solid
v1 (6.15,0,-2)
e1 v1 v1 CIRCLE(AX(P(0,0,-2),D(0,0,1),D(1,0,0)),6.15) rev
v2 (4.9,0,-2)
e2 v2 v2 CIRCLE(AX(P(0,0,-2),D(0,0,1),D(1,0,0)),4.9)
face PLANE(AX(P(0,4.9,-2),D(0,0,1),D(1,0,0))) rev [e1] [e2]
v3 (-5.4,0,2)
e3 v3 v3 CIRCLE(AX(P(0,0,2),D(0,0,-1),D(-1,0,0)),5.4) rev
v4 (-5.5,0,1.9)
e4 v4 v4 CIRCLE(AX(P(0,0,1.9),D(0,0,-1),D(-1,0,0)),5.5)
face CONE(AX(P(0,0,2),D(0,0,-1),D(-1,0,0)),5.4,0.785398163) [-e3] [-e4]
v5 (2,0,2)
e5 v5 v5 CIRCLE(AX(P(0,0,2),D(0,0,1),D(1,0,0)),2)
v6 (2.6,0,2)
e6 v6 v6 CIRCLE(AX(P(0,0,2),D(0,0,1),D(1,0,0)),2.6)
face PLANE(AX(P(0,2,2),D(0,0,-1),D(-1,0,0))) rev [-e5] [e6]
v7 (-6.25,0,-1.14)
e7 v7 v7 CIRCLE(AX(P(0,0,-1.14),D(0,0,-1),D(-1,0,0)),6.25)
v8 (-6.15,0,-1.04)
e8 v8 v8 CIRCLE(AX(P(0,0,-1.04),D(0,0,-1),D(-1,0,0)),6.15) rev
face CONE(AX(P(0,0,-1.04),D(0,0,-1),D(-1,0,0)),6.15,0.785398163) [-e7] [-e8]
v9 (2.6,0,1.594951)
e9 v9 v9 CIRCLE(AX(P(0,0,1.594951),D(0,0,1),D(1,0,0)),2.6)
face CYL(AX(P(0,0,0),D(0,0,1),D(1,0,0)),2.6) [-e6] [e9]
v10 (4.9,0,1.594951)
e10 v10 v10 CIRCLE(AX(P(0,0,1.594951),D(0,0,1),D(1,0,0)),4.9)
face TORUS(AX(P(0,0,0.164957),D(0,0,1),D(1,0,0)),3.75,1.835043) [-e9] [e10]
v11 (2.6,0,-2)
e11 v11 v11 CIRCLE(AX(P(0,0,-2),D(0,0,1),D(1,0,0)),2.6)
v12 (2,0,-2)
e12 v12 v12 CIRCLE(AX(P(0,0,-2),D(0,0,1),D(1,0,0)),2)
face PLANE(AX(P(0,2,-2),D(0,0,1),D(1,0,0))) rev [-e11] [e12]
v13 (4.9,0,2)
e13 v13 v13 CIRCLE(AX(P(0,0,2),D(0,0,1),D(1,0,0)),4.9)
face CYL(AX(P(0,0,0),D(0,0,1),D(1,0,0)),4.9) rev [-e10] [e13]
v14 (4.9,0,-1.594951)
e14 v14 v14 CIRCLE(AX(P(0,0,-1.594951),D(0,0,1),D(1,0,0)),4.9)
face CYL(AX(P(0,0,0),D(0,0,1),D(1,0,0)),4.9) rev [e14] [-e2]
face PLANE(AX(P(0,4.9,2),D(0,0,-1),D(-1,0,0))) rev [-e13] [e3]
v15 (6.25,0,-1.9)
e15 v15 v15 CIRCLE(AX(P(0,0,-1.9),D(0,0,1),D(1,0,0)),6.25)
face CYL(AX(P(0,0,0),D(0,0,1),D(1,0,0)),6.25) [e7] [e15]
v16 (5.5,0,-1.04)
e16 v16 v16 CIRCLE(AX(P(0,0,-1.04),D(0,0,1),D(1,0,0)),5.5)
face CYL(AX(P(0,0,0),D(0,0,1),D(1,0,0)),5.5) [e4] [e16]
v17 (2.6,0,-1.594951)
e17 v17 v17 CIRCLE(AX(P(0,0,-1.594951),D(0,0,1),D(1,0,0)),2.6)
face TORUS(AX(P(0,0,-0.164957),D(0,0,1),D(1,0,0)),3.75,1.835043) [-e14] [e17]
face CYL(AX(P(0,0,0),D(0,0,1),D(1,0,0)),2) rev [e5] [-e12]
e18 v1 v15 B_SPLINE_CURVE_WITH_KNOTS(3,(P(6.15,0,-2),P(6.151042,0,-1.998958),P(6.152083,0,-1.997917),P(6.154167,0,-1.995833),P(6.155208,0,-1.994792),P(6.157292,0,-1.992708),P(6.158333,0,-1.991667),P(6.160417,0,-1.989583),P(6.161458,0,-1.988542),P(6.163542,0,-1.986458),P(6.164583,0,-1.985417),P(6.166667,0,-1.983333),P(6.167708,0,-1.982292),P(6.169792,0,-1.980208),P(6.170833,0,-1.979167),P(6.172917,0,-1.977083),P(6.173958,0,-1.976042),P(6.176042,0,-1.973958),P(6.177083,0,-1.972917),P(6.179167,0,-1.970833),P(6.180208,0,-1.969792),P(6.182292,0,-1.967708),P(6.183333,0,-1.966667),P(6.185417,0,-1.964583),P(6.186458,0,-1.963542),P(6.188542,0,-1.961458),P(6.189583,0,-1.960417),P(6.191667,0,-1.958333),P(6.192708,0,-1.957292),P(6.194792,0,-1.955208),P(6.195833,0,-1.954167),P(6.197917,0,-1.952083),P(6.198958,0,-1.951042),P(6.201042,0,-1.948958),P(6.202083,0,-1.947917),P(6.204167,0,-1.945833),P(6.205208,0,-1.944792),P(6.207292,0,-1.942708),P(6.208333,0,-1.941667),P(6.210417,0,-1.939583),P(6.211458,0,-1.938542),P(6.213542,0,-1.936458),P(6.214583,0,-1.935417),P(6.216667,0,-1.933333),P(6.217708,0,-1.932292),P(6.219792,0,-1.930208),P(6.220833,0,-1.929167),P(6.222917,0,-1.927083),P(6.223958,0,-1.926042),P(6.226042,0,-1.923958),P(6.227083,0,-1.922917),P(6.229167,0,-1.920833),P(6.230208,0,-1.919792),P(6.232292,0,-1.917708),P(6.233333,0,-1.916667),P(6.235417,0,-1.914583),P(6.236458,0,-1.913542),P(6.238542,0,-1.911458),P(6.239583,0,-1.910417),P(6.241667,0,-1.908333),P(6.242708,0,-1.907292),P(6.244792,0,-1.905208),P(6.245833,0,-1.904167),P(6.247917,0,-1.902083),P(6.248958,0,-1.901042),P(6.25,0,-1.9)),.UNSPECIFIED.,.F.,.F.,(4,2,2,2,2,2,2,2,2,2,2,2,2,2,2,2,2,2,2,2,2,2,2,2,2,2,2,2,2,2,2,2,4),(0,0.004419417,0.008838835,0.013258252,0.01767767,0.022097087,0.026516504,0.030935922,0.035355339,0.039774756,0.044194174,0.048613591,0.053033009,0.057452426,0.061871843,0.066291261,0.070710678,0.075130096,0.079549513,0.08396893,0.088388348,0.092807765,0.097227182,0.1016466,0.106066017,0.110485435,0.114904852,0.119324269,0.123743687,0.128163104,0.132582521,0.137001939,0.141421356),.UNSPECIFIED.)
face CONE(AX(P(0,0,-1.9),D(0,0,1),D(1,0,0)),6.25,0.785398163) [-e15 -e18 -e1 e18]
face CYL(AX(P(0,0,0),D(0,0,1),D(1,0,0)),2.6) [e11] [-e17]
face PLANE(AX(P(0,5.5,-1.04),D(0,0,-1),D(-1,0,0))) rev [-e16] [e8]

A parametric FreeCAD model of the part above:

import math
import FreeCAD as App
import Part
import Sketcher
Q = App.Units.Quantity


def edges_at(feature, points):
    """Names of the edges that pass closest to the given points."""
    edges = feature.Shape.Edges
    near = lambda p: min(range(len(edges)), key=lambda i: edges[i].distToShape(Part.Vertex(*p))[0])
    return sorted({f"Edge{near(p) + 1}" for p in points})

doc = App.newDocument("Part")
params = doc.addObject("Spreadsheet::Sheet", "Params")
for row, (alias, value) in enumerate([
    ("sketch1_height", "4 mm"),
    ("sketch1_width", "0.6 mm"),
    ("sketch1_width2", "1.35 mm"),
    ("sketch1_height2", "0.96 mm"),
    ("revolution_angle", "360 deg"),
    ("chamfer_size", "0.1 mm"),
], start=1):
    params.set(f"A{row}", alias)
    params.set(f"B{row}", "=" + value)
    params.setAlias(f"B{row}", alias)

body = doc.addObject("PartDesign::Body", "Body")

sketch1 = body.newObject("Sketcher::SketchObject", "Sketch")
sketch1.AttachmentSupport = (doc.getObject("YZ_Plane"), [""])
sketch1.MapMode = "FlatFace"
sketch1.addGeometry(Part.LineSegment(App.Vector(2, 2, 0), App.Vector(2, -2, 0)), False)
sketch1.addGeometry(Part.LineSegment(App.Vector(2, -2, 0), App.Vector(2.6, -2, 0)), False)
sketch1.addGeometry(Part.LineSegment(App.Vector(2.6, -2, 0), App.Vector(2.6, -1.594951, 0)), False)
sketch1.addGeometry(Part.ArcOfCircle(Part.Circle(App.Vector(3.75, -0.164957, 0), App.Vector(0, 0, 1), 1.835043), math.radians(-128.806206), math.radians(-51.193794)), False)
sketch1.addGeometry(Part.LineSegment(App.Vector(4.9, -1.594951, 0), App.Vector(4.9, -2, 0)), False)
sketch1.addGeometry(Part.LineSegment(App.Vector(4.9, -2, 0), App.Vector(6.25, -2, 0)), False)
sketch1.addGeometry(Part.LineSegment(App.Vector(6.25, -2, 0), App.Vector(6.25, -1.04, 0)), False)
sketch1.addGeometry(Part.LineSegment(App.Vector(6.25, -1.04, 0), App.Vector(5.5, -1.04, 0)), False)
sketch1.addGeometry(Part.LineSegment(App.Vector(5.5, -1.04, 0), App.Vector(5.5, 2, 0)), False)
sketch1.addGeometry(Part.LineSegment(App.Vector(5.5, 2, 0), App.Vector(4.9, 2, 0)), False)
sketch1.addGeometry(Part.LineSegment(App.Vector(4.9, 2, 0), App.Vector(4.9, 1.594951, 0)), False)
sketch1.addGeometry(Part.ArcOfCircle(Part.Circle(App.Vector(3.75, 0.164957, 0), App.Vector(0, 0, 1), 1.835043), math.radians(51.193794), math.radians(128.806206)), False)
sketch1.addGeometry(Part.LineSegment(App.Vector(2.6, 1.594951, 0), App.Vector(2.6, 2, 0)), False)
sketch1.addGeometry(Part.LineSegment(App.Vector(2.6, 2, 0), App.Vector(2, 2, 0)), False)
sketch1.addConstraint(Sketcher.Constraint("Coincident", 0, 2, 1, 1))
sketch1.addConstraint(Sketcher.Constraint("Coincident", 1, 2, 2, 1))
sketch1.addConstraint(Sketcher.Constraint("Coincident", 2, 2, 3, 1))
sketch1.addConstraint(Sketcher.Constraint("Coincident", 3, 2, 4, 1))
sketch1.addConstraint(Sketcher.Constraint("Coincident", 4, 2, 5, 1))
sketch1.addConstraint(Sketcher.Constraint("Coincident", 5, 2, 6, 1))
sketch1.addConstraint(Sketcher.Constraint("Coincident", 6, 2, 7, 1))
sketch1.addConstraint(Sketcher.Constraint("Coincident", 7, 2, 8, 1))
sketch1.addConstraint(Sketcher.Constraint("Coincident", 8, 2, 9, 1))
sketch1.addConstraint(Sketcher.Constraint("Coincident", 9, 2, 10, 1))
sketch1.addConstraint(Sketcher.Constraint("Coincident", 10, 2, 11, 1))
sketch1.addConstraint(Sketcher.Constraint("Coincident", 11, 2, 12, 1))
sketch1.addConstraint(Sketcher.Constraint("Coincident", 12, 2, 13, 1))
sketch1.addConstraint(Sketcher.Constraint("Coincident", 13, 2, 0, 1))
sketch1.addConstraint(Sketcher.Constraint("Vertical", 0))
sketch1.addConstraint(Sketcher.Constraint("Horizontal", 1))
sketch1.addConstraint(Sketcher.Constraint("Vertical", 2))
sketch1.addConstraint(Sketcher.Constraint("Vertical", 4))
sketch1.addConstraint(Sketcher.Constraint("Horizontal", 5))
sketch1.addConstraint(Sketcher.Constraint("Vertical", 6))
sketch1.addConstraint(Sketcher.Constraint("Horizontal", 7))
sketch1.addConstraint(Sketcher.Constraint("Vertical", 8))
sketch1.addConstraint(Sketcher.Constraint("Horizontal", 9))
sketch1.addConstraint(Sketcher.Constraint("Vertical", 10))
sketch1.addConstraint(Sketcher.Constraint("Vertical", 12))
sketch1.addConstraint(Sketcher.Constraint("Horizontal", 13))
sketch1.addConstraint(Sketcher.Constraint("Equal", 3, 11))
sketch1.addConstraint(Sketcher.Constraint("Symmetric", 3, 3, 11, 3, -1))
sketch1.addConstraint(Sketcher.Constraint("Symmetric", 4, 2, 9, 2, -1))
sketch1.addConstraint(Sketcher.Constraint("Symmetric", 1, 2, 12, 2, -1))
sketch1.addConstraint(Sketcher.Constraint("Horizontal", 2, 2, 3, 2))
sketch1.addConstraint(Sketcher.Constraint("Horizontal", 1, 2, 4, 2))
sketch1.addConstraint(Sketcher.Constraint("Equal", 1, 9))
sketch1.addConstraint(Sketcher.Constraint("DistanceY", 0, 2, 0, 1, Q("4 mm")))
sketch1.addConstraint(Sketcher.Constraint("DistanceX", 1, 1, 1, 2, Q("0.6 mm")))
sketch1.addConstraint(Sketcher.Constraint("DistanceX", -1, 1, 0, 2, Q("2 mm")))
sketch1.addConstraint(Sketcher.Constraint("DistanceX", 5, 1, 5, 2, Q("1.35 mm")))
sketch1.addConstraint(Sketcher.Constraint("DistanceY", 6, 1, 6, 2, Q("0.96 mm")))
sketch1.addConstraint(Sketcher.Constraint("DistanceX", -1, 1, 3, 2, Q("4.9 mm")))
sketch1.addConstraint(Sketcher.Constraint("Radius", 3, Q("1.835043 mm")))
sketch1.addConstraint(Sketcher.Constraint("DistanceY", 2, 1, 2, 2, Q("0.405049 mm")))
sketch1.setExpression("Constraints[33]", "Params.sketch1_height")
sketch1.setExpression("Constraints[34]", "Params.sketch1_width")
sketch1.setExpression("Constraints[36]", "Params.sketch1_width2")
sketch1.setExpression("Constraints[37]", "Params.sketch1_height2")
revolution = body.newObject("PartDesign::Revolution", "Revolution")
revolution.Profile = sketch1
revolution.ReferenceAxis = (sketch1, ["V_Axis"])
revolution.setExpression("Angle", "Params.revolution_angle")
doc.recompute()

chamfer = body.newObject("PartDesign::Chamfer", "Chamfer")
chamfer.Base = (revolution, edges_at(revolution, [(-5.5, 0, 2), (-6.25, 0, -1.04), (-6.25, 0, -2)]))
chamfer.setExpression("Size", "Params.chamfer_size")

doc.recompute()
